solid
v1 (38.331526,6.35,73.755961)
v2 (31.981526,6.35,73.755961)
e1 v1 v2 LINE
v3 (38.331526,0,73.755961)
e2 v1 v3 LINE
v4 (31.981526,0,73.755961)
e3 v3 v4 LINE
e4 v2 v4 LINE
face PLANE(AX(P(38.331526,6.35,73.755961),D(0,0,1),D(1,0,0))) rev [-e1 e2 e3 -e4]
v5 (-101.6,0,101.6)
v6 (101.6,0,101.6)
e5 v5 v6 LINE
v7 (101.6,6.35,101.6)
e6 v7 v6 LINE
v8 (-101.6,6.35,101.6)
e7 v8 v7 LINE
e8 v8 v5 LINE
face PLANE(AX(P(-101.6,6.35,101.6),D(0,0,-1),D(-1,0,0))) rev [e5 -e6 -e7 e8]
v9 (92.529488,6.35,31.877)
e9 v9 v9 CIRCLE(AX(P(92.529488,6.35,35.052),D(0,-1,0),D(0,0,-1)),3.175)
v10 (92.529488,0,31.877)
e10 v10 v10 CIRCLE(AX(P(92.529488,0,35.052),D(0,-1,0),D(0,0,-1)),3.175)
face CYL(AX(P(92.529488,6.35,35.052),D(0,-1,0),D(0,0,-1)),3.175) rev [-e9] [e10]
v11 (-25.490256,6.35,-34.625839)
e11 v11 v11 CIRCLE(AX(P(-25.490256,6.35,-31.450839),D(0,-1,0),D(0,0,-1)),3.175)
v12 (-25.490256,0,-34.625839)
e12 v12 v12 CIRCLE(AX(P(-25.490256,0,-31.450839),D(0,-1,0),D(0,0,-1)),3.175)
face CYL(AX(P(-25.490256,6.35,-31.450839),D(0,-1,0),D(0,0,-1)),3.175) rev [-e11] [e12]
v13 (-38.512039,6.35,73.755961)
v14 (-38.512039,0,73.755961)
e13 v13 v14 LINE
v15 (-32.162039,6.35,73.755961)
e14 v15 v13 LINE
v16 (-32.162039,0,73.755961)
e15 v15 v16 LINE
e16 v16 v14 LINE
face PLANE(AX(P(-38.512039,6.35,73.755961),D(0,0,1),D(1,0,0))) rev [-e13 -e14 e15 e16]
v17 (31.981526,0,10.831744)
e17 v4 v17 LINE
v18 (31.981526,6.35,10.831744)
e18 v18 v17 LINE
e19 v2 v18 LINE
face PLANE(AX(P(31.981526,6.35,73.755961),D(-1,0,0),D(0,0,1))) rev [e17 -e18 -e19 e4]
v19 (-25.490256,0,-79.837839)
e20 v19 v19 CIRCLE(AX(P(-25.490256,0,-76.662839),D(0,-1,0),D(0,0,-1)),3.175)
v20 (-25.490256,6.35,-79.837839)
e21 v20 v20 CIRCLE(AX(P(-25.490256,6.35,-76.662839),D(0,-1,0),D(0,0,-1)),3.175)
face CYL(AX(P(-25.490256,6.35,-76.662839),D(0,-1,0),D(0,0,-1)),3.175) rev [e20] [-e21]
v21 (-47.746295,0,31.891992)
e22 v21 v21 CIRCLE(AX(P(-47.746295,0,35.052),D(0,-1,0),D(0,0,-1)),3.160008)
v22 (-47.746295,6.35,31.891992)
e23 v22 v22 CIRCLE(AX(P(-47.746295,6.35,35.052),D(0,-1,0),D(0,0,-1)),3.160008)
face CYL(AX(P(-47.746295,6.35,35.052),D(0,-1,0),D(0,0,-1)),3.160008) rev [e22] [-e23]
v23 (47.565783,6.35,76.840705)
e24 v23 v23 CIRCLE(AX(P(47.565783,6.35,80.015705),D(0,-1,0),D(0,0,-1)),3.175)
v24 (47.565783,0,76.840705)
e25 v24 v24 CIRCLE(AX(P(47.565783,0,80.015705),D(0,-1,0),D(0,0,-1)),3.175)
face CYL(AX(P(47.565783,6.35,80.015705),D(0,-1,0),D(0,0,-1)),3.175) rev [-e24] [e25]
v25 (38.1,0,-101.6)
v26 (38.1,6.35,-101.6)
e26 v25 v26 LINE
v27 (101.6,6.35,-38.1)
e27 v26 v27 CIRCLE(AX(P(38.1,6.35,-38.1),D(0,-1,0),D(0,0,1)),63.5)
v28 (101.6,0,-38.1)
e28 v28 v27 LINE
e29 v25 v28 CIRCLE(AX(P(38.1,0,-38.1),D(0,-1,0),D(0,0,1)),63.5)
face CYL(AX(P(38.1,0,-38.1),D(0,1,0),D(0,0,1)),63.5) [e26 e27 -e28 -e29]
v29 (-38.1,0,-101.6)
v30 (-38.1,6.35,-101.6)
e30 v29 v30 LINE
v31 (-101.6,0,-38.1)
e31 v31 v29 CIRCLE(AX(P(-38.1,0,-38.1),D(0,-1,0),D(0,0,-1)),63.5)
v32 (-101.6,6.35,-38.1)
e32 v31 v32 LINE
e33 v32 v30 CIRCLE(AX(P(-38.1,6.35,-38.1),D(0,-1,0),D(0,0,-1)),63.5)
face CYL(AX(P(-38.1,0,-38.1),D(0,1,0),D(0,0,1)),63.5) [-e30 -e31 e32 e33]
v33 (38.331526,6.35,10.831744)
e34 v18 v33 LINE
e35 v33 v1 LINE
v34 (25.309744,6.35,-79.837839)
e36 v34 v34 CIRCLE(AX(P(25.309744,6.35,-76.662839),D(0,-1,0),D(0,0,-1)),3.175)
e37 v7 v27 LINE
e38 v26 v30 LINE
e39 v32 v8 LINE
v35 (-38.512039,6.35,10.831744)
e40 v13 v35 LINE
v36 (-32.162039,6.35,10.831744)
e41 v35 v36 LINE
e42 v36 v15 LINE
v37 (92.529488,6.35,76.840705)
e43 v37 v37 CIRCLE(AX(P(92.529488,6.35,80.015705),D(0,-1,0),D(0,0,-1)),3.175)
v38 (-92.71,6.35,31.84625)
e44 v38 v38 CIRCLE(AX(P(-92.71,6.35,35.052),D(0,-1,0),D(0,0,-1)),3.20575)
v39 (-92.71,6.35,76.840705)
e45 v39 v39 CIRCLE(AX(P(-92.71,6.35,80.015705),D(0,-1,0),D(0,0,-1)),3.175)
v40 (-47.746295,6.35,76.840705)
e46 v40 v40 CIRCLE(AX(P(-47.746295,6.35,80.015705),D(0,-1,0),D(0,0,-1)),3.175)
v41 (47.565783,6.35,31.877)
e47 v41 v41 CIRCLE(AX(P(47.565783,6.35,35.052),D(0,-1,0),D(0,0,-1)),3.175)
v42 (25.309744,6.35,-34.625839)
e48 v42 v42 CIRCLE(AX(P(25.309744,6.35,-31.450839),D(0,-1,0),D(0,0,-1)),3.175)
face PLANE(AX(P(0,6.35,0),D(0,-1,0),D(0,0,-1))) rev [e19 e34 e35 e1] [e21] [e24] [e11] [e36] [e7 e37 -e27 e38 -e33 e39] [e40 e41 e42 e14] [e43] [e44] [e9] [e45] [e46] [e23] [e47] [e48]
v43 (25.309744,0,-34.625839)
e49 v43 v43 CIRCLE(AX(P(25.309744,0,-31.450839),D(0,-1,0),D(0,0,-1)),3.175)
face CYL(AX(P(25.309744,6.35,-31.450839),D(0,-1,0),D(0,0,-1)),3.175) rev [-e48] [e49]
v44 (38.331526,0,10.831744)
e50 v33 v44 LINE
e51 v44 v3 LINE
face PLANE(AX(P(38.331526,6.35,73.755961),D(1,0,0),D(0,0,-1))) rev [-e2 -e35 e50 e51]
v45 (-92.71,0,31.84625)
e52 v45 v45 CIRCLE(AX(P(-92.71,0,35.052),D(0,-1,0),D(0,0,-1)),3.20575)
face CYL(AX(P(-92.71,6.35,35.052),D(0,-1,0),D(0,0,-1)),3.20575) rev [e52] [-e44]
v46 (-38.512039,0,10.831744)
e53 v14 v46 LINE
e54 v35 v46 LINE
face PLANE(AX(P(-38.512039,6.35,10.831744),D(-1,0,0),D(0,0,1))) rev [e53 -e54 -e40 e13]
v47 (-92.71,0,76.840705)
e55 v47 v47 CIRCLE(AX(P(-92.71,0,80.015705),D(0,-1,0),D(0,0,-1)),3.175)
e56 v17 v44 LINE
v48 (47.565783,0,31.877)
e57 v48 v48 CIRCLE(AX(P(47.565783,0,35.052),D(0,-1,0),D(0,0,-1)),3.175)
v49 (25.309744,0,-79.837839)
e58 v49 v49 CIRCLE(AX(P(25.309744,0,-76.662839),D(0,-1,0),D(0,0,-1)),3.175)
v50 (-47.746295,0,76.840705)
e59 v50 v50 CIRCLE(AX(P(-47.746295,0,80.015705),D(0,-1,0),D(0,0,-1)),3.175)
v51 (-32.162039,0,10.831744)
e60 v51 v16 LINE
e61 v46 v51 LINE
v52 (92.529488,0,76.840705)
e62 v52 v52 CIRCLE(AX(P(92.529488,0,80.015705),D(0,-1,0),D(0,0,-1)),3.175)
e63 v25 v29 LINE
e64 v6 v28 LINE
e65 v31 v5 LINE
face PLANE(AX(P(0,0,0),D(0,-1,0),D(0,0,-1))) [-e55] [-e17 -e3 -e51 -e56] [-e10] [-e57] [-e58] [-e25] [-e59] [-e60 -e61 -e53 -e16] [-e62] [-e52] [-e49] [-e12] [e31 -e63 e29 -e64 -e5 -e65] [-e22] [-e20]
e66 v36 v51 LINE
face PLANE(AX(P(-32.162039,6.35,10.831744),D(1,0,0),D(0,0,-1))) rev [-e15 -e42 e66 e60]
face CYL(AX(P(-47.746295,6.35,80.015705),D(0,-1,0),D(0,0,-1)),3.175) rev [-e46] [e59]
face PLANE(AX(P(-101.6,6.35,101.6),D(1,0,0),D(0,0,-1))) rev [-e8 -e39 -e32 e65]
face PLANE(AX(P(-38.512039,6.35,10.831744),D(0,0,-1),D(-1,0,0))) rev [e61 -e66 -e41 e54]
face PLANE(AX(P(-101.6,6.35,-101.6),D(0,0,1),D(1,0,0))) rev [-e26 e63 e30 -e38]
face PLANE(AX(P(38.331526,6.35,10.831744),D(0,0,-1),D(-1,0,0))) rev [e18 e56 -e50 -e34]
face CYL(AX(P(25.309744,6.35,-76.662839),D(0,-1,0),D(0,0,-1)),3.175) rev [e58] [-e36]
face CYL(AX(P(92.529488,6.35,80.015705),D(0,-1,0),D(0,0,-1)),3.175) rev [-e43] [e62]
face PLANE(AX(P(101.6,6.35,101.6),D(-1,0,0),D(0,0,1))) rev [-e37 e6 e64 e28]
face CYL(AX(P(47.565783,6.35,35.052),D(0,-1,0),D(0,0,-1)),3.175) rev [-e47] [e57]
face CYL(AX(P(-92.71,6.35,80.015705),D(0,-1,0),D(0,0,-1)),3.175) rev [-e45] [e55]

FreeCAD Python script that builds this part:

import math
import FreeCAD as App
import Part
import Sketcher
Q = App.Units.Quantity

doc = App.newDocument("Part")
body = doc.addObject("PartDesign::Body", "Body")

sketch1 = doc.addObject("Sketcher::SketchObject", "Sketch")
body.addObject(sketch1)
sketch1.AttachmentSupport = (doc.XZ_Plane, [""])
sketch1.MapMode = "FlatFace"
sketch1.addGeometry([
    Part.LineSegment(App.Vector(-102, -102, 0), App.Vector(-102, 102, 0)),
    Part.LineSegment(App.Vector(-102, 102, 0), App.Vector(102, 102, 0)),
    Part.LineSegment(App.Vector(102, 102, 0), App.Vector(102, -102, 0)),
    Part.LineSegment(App.Vector(102, -102, 0), App.Vector(-102, -102, 0)),
], False)
sketch1.addConstraint([
    Sketcher.Constraint("Coincident", 0, 2, 1, 1),
    Sketcher.Constraint("Coincident", 1, 2, 2, 1),
    Sketcher.Constraint("Coincident", 2, 2, 3, 1),
    Sketcher.Constraint("Coincident", 3, 2, 0, 1),
    Sketcher.Constraint("Vertical", 0),
    Sketcher.Constraint("Horizontal", 1),
    Sketcher.Constraint("Vertical", 2),
    Sketcher.Constraint("Horizontal", 3),
    Sketcher.Constraint("Symmetric", 0, 2, 2, 2, -1, 1),
    Sketcher.Constraint("Equal", 3, 0),
    Sketcher.Constraint("DistanceX", 1, 1, 1, 2, Q("8 in")),
])
pad1 = doc.addObject("PartDesign::Pad", "Pad")
body.addObject(pad1)
pad1.Profile = sketch1
pad1.Length = Q("0.25 in")
pad1.Reversed = True

sketch2 = doc.addObject("Sketcher::SketchObject", "Sketch001")
body.addObject(sketch2)
sketch2.AttachmentSupport = (doc.XZ_Plane, [""])
sketch2.MapMode = "FlatFace"
sketch2.AttachmentOffset = App.Placement(App.Vector(0, 0, -0.25 * 25.4), App.Rotation())
sketch2.addGeometry([
    Part.LineSegment(App.Vector(102, -38, 0), App.Vector(102, -102, 0)),
    Part.LineSegment(App.Vector(102, -102, 0), App.Vector(38, -102, 0)),
    Part.ArcOfCircle(Part.Circle(App.Vector(38, -38, 0), App.Vector(0, 0, 1), 64), math.radians(-90), math.radians(0)),
    Part.LineSegment(App.Vector(-38, -102, 0), App.Vector(-102, -102, 0)),
    Part.LineSegment(App.Vector(-102, -102, 0), App.Vector(-102, -38, 0)),
    Part.ArcOfCircle(Part.Circle(App.Vector(-38, -38, 0), App.Vector(0, 0, 1), 64), math.radians(-180), math.radians(-90)),
], False)
sketch2.addConstraint([
    Sketcher.Constraint("Coincident", 0, 2, 1, 1),
    Sketcher.Constraint("Tangent", 1, 2, 2, 1),
    Sketcher.Constraint("Tangent", 2, 2, 0, 1),
    Sketcher.Constraint("Coincident", 3, 2, 4, 1),
    Sketcher.Constraint("Tangent", 4, 2, 5, 1),
    Sketcher.Constraint("Tangent", 5, 2, 3, 1),
    Sketcher.Constraint("Vertical", 0),
    Sketcher.Constraint("Horizontal", 1),
    Sketcher.Constraint("Horizontal", 3),
    Sketcher.Constraint("Vertical", 4),
    Sketcher.Constraint("Equal", 2, 5),
    Sketcher.Constraint("Symmetric", 2, 3, 5, 3, -2),
    Sketcher.Constraint("Radius", 2, Q("2.5 in")),
    Sketcher.Constraint("DistanceX", -1, 1, 0, 2, Q("4 in")),
    Sketcher.Constraint("DistanceY", 0, 2, -1, 1, Q("4 in")),
])
pocket1 = doc.addObject("PartDesign::Pocket", "Pocket")
body.addObject(pocket1)
pocket1.Profile = sketch2
pocket1.Type = "ThroughAll"
pocket1.Reversed = True

sketch3 = doc.addObject("Sketcher::SketchObject", "Sketch002")
body.addObject(sketch3)
sketch3.AttachmentSupport = (doc.XZ_Plane, [""])
sketch3.MapMode = "FlatFace"
sketch3.addGeometry([
    Part.Circle(App.Vector(-25.5, -31.5, 0), App.Vector(0, 0, 1), 3.2),
    Part.Circle(App.Vector(25.3, -31.5, 0), App.Vector(0, 0, 1), 3.2),
    Part.Circle(App.Vector(-25.5, -76.7, 0), App.Vector(0, 0, 1), 3.2),
    Part.Circle(App.Vector(25.3, -76.7, 0), App.Vector(0, 0, 1), 3.2),
    Part.Circle(App.Vector(-47.7, 80, 0), App.Vector(0, 0, 1), 3.2),
    Part.Circle(App.Vector(-92.7, 80, 0), App.Vector(0, 0, 1), 3.2),
    Part.Circle(App.Vector(-47.7, 35.1, 0), App.Vector(0, 0, 1), 3.2),
    Part.Circle(App.Vector(-92.7, 35.1, 0), App.Vector(0, 0, 1), 3.2),
    Part.Circle(App.Vector(47.6, 80, 0), App.Vector(0, 0, 1), 3.2),
    Part.Circle(App.Vector(92.5, 80, 0), App.Vector(0, 0, 1), 3.2),
    Part.Circle(App.Vector(47.6, 35.1, 0), App.Vector(0, 0, 1), 3.2),
    Part.Circle(App.Vector(92.5, 35.1, 0), App.Vector(0, 0, 1), 3.2),
    Part.LineSegment(App.Vector(-38.5, 73.8, 0), App.Vector(-38.5, 10.8, 0)),
    Part.LineSegment(App.Vector(-38.5, 10.8, 0), App.Vector(-32.2, 10.8, 0)),
    Part.LineSegment(App.Vector(-32.2, 10.8, 0), App.Vector(-32.2, 73.8, 0)),
    Part.LineSegment(App.Vector(-32.2, 73.8, 0), App.Vector(-38.5, 73.8, 0)),
    Part.LineSegment(App.Vector(32, 73.8, 0), App.Vector(32, 10.8, 0)),
    Part.LineSegment(App.Vector(32, 10.8, 0), App.Vector(38.3, 10.8, 0)),
    Part.LineSegment(App.Vector(38.3, 10.8, 0), App.Vector(38.3, 73.8, 0)),
    Part.LineSegment(App.Vector(38.3, 73.8, 0), App.Vector(32, 73.8, 0)),
], False)
sketch3.addConstraint([
    Sketcher.Constraint("Coincident", 12, 2, 13, 1),
    Sketcher.Constraint("Coincident", 13, 2, 14, 1),
    Sketcher.Constraint("Coincident", 14, 2, 15, 1),
    Sketcher.Constraint("Coincident", 15, 2, 12, 1),
    Sketcher.Constraint("Coincident", 16, 2, 17, 1),
    Sketcher.Constraint("Coincident", 17, 2, 18, 1),
    Sketcher.Constraint("Coincident", 18, 2, 19, 1),
    Sketcher.Constraint("Coincident", 19, 2, 16, 1),
    Sketcher.Constraint("Vertical", 12),
    Sketcher.Constraint("Horizontal", 13),
    Sketcher.Constraint("Vertical", 14),
    Sketcher.Constraint("Horizontal", 15),
    Sketcher.Constraint("Vertical", 16),
    Sketcher.Constraint("Horizontal", 17),
    Sketcher.Constraint("Vertical", 18),
    Sketcher.Constraint("Horizontal", 19),
    Sketcher.Constraint("Equal", 0, 1),
    Sketcher.Constraint("Equal", 1, 2),
    Sketcher.Constraint("Equal", 2, 3),
    Sketcher.Constraint("Equal", 3, 4),
    Sketcher.Constraint("Equal", 4, 5),
    Sketcher.Constraint("Equal", 5, 8),
    Sketcher.Constraint("Equal", 8, 9),
    Sketcher.Constraint("Equal", 9, 10),
    Sketcher.Constraint("Equal", 10, 11),
    Sketcher.Constraint("Horizontal", 0, 3, 1, 3),
    Sketcher.Constraint("Horizontal", 2, 3, 3, 3),
    Sketcher.Constraint("Horizontal", 4, 3, 5, 3),
    Sketcher.Constraint("Horizontal", 6, 3, 7, 3),
    Sketcher.Constraint("Horizontal", 5, 3, 8, 3),
    Sketcher.Constraint("Horizontal", 8, 3, 9, 3),
    Sketcher.Constraint("Horizontal", 7, 3, 10, 3),
    Sketcher.Constraint("Horizontal", 10, 3, 11, 3),
    Sketcher.Constraint("Horizontal", 13, 2, 16, 2),
    Sketcher.Constraint("Horizontal", 15, 2, 18, 2),
    Sketcher.Constraint("Vertical", 0, 3, 2, 3),
    Sketcher.Constraint("Vertical", 1, 3, 3, 3),
    Sketcher.Constraint("Vertical", 4, 3, 6, 3),
    Sketcher.Constraint("Vertical", 5, 3, 7, 3),
    Sketcher.Constraint("Vertical", 8, 3, 10, 3),
    Sketcher.Constraint("Vertical", 9, 3, 11, 3),
    Sketcher.Constraint("Equal", 15, 17),
    Sketcher.Constraint("Diameter", 0, Q("0.25 in")),
    Sketcher.Constraint("DistanceX", 0, 3, 1, 3, Q("2 in")),
    Sketcher.Constraint("DistanceX", 13, 1, 13, 2, Q("0.25 in")),
    Sketcher.Constraint("Diameter", 7, 6.4115),
    Sketcher.Constraint("DistanceX", 5, 3, -1, 1, Q("3.65 in")),
    Sketcher.Constraint("DistanceY", -1, 1, 6, 3, Q("1.38 in")),
    Sketcher.Constraint("DistanceY", 2, 3, 0, 3, Q("1.78 in")),
    Sketcher.Constraint("Diameter", 6, 6.320017),
    Sketcher.Constraint("DistanceY", 12, 2, 12, 1, 62.924217),
    Sketcher.Constraint("DistanceY", 0, 3, -1, 1, 31.450839),
    Sketcher.Constraint("DistanceX", 12, 2, -1, 1, 38.512039),
    Sketcher.Constraint("DistanceY", -1, 1, 14, 2, 73.755961),
    Sketcher.Constraint("DistanceX", 4, 3, 0, 3, 22.256039),
    Sketcher.Constraint("DistanceX", 1, 3, 8, 3, 22.256039),
    Sketcher.Constraint("DistanceY", 12, 2, 4, 3, 69.183961),
    Sketcher.Constraint("DistanceX", 16, 2, 11, 3, 60.547961),
    Sketcher.Constraint("DistanceX", 0, 3, -1, 1, 25.490256),
    Sketcher.Constraint("DistanceX", -1, 1, 9, 3, 92.529488),
])
pocket2 = doc.addObject("PartDesign::Pocket", "Pocket001")
body.addObject(pocket2)
pocket2.Profile = sketch3
pocket2.Type = "ThroughAll"

doc.recompute()
